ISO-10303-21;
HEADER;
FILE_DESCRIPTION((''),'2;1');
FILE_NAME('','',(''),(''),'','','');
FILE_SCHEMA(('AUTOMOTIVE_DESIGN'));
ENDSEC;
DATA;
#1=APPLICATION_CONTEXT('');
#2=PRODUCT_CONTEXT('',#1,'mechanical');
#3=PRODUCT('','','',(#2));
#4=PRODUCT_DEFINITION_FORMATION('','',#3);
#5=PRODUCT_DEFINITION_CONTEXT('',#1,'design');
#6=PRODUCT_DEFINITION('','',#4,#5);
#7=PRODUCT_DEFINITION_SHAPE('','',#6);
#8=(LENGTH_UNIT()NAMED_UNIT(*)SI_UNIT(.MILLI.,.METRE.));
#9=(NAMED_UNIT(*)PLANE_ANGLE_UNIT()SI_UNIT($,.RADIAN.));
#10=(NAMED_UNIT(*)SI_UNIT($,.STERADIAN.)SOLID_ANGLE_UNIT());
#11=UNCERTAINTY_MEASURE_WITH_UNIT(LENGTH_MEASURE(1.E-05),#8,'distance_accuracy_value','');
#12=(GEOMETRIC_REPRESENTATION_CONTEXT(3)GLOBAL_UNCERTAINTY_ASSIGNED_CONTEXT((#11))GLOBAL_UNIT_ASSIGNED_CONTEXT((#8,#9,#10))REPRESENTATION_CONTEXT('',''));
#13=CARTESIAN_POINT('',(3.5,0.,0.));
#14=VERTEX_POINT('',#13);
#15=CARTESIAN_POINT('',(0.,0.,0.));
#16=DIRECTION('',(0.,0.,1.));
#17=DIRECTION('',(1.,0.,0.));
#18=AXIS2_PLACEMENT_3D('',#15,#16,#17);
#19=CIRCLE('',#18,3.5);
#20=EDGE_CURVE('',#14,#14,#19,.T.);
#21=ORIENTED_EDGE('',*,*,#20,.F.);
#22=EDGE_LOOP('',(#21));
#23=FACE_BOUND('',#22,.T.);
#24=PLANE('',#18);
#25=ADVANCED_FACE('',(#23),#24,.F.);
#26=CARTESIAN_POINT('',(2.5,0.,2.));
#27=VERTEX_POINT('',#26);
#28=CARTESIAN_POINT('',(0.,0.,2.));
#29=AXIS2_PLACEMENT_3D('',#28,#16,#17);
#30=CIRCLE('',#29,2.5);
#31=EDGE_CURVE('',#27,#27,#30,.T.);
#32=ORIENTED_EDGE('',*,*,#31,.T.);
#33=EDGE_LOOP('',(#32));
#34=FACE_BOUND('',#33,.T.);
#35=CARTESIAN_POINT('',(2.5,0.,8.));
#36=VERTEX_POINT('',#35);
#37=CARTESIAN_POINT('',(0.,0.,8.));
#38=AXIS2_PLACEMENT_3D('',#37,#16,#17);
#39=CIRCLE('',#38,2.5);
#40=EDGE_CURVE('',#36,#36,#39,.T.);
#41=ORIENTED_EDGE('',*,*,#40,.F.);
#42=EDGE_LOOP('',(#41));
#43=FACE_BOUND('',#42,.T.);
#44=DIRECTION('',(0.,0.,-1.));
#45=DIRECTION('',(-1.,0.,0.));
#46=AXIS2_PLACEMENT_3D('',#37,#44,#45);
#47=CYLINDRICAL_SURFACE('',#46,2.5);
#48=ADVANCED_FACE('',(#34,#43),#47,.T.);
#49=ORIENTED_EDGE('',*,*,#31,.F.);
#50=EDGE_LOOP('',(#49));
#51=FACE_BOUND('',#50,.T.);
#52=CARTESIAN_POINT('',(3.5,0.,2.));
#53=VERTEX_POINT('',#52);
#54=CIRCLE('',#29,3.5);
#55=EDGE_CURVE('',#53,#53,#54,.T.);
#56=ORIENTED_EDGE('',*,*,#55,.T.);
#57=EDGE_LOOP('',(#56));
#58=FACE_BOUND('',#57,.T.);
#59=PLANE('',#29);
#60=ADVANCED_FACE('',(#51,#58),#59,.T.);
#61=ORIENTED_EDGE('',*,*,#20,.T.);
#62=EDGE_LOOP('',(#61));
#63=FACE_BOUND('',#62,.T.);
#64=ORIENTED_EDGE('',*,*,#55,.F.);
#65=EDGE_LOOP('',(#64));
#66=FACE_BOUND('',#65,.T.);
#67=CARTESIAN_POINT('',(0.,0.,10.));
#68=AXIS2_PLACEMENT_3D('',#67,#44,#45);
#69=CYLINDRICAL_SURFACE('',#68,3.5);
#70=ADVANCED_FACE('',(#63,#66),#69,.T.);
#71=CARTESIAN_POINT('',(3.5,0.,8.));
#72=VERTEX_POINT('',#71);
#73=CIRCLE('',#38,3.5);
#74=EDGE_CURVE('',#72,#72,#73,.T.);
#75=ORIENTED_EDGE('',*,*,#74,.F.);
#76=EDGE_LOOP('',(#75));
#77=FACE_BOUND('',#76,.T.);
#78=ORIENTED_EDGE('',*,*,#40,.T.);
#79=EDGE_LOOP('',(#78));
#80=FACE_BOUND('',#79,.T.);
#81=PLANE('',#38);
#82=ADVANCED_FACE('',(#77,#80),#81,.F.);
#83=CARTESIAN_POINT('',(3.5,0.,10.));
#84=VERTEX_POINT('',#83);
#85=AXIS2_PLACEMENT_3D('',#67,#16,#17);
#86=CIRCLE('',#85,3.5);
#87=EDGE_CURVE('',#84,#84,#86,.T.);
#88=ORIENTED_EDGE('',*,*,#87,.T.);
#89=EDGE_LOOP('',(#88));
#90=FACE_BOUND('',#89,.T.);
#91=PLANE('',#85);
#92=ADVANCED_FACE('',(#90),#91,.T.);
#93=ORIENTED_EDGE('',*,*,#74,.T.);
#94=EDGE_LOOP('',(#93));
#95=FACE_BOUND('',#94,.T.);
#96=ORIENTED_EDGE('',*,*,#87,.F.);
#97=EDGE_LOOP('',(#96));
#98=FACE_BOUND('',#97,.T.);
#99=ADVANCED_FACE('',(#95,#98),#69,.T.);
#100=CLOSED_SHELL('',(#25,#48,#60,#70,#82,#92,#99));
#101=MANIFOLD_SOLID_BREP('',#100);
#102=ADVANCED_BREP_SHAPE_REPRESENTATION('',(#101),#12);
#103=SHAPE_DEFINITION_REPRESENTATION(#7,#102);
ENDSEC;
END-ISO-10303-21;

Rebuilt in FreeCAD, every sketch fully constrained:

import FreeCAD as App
import Part
import Sketcher
from FreeCAD import Vector
Q = App.Units.Quantity

doc = App.newDocument("Part")
body = doc.addObject("PartDesign::Body", "Body")

sketch1 = body.newObject("Sketcher::SketchObject", "Sketch")
sketch1.AttachmentSupport = (doc.getObject("XY_Plane"), [""])
sketch1.MapMode = "FlatFace"
sketch1.addGeometry(Part.Circle(Vector(0, 0, 0), Vector(0, 0, 1), 3.5), False)
sketch1.addConstraint(Sketcher.Constraint("Coincident", 0, 3, -1, 1))
sketch1.addConstraint(Sketcher.Constraint("Diameter", 0, Q("7 mm")))
pad1 = body.newObject("PartDesign::Pad", "Pad")
pad1.Profile = sketch1
pad1.Length = 10

sketch2 = body.newObject("Sketcher::SketchObject", "Sketch001")
sketch2.AttachmentSupport = (doc.getObject("XY_Plane"), [""])
sketch2.MapMode = "FlatFace"
sketch2.AttachmentOffset = App.Placement(Vector(0, 0, 5), App.Rotation())
sketch2.addGeometry(Part.Circle(Vector(0, 0, 0), Vector(0, 0, 1), 3.5), False)
sketch2.addGeometry(Part.Circle(Vector(0, 0, 0), Vector(0, 0, 1), 2.5), False)
sketch2.addConstraint(Sketcher.Constraint("Coincident", 0, 3, -1, 1))
sketch2.addConstraint(Sketcher.Constraint("Coincident", 1, 3, -1, 1))
sketch2.addConstraint(Sketcher.Constraint("Diameter", 0, Q("7 mm")))
sketch2.addConstraint(Sketcher.Constraint("Diameter", 1, Q("5 mm")))
pocket1 = body.newObject("PartDesign::Pocket", "Pocket")
pocket1.Profile = sketch2
pocket1.Type = "TwoLengths"
pocket1.Length = 3
pocket1.Length2 = 3
pocket1.Reversed = True

doc.recompute()
